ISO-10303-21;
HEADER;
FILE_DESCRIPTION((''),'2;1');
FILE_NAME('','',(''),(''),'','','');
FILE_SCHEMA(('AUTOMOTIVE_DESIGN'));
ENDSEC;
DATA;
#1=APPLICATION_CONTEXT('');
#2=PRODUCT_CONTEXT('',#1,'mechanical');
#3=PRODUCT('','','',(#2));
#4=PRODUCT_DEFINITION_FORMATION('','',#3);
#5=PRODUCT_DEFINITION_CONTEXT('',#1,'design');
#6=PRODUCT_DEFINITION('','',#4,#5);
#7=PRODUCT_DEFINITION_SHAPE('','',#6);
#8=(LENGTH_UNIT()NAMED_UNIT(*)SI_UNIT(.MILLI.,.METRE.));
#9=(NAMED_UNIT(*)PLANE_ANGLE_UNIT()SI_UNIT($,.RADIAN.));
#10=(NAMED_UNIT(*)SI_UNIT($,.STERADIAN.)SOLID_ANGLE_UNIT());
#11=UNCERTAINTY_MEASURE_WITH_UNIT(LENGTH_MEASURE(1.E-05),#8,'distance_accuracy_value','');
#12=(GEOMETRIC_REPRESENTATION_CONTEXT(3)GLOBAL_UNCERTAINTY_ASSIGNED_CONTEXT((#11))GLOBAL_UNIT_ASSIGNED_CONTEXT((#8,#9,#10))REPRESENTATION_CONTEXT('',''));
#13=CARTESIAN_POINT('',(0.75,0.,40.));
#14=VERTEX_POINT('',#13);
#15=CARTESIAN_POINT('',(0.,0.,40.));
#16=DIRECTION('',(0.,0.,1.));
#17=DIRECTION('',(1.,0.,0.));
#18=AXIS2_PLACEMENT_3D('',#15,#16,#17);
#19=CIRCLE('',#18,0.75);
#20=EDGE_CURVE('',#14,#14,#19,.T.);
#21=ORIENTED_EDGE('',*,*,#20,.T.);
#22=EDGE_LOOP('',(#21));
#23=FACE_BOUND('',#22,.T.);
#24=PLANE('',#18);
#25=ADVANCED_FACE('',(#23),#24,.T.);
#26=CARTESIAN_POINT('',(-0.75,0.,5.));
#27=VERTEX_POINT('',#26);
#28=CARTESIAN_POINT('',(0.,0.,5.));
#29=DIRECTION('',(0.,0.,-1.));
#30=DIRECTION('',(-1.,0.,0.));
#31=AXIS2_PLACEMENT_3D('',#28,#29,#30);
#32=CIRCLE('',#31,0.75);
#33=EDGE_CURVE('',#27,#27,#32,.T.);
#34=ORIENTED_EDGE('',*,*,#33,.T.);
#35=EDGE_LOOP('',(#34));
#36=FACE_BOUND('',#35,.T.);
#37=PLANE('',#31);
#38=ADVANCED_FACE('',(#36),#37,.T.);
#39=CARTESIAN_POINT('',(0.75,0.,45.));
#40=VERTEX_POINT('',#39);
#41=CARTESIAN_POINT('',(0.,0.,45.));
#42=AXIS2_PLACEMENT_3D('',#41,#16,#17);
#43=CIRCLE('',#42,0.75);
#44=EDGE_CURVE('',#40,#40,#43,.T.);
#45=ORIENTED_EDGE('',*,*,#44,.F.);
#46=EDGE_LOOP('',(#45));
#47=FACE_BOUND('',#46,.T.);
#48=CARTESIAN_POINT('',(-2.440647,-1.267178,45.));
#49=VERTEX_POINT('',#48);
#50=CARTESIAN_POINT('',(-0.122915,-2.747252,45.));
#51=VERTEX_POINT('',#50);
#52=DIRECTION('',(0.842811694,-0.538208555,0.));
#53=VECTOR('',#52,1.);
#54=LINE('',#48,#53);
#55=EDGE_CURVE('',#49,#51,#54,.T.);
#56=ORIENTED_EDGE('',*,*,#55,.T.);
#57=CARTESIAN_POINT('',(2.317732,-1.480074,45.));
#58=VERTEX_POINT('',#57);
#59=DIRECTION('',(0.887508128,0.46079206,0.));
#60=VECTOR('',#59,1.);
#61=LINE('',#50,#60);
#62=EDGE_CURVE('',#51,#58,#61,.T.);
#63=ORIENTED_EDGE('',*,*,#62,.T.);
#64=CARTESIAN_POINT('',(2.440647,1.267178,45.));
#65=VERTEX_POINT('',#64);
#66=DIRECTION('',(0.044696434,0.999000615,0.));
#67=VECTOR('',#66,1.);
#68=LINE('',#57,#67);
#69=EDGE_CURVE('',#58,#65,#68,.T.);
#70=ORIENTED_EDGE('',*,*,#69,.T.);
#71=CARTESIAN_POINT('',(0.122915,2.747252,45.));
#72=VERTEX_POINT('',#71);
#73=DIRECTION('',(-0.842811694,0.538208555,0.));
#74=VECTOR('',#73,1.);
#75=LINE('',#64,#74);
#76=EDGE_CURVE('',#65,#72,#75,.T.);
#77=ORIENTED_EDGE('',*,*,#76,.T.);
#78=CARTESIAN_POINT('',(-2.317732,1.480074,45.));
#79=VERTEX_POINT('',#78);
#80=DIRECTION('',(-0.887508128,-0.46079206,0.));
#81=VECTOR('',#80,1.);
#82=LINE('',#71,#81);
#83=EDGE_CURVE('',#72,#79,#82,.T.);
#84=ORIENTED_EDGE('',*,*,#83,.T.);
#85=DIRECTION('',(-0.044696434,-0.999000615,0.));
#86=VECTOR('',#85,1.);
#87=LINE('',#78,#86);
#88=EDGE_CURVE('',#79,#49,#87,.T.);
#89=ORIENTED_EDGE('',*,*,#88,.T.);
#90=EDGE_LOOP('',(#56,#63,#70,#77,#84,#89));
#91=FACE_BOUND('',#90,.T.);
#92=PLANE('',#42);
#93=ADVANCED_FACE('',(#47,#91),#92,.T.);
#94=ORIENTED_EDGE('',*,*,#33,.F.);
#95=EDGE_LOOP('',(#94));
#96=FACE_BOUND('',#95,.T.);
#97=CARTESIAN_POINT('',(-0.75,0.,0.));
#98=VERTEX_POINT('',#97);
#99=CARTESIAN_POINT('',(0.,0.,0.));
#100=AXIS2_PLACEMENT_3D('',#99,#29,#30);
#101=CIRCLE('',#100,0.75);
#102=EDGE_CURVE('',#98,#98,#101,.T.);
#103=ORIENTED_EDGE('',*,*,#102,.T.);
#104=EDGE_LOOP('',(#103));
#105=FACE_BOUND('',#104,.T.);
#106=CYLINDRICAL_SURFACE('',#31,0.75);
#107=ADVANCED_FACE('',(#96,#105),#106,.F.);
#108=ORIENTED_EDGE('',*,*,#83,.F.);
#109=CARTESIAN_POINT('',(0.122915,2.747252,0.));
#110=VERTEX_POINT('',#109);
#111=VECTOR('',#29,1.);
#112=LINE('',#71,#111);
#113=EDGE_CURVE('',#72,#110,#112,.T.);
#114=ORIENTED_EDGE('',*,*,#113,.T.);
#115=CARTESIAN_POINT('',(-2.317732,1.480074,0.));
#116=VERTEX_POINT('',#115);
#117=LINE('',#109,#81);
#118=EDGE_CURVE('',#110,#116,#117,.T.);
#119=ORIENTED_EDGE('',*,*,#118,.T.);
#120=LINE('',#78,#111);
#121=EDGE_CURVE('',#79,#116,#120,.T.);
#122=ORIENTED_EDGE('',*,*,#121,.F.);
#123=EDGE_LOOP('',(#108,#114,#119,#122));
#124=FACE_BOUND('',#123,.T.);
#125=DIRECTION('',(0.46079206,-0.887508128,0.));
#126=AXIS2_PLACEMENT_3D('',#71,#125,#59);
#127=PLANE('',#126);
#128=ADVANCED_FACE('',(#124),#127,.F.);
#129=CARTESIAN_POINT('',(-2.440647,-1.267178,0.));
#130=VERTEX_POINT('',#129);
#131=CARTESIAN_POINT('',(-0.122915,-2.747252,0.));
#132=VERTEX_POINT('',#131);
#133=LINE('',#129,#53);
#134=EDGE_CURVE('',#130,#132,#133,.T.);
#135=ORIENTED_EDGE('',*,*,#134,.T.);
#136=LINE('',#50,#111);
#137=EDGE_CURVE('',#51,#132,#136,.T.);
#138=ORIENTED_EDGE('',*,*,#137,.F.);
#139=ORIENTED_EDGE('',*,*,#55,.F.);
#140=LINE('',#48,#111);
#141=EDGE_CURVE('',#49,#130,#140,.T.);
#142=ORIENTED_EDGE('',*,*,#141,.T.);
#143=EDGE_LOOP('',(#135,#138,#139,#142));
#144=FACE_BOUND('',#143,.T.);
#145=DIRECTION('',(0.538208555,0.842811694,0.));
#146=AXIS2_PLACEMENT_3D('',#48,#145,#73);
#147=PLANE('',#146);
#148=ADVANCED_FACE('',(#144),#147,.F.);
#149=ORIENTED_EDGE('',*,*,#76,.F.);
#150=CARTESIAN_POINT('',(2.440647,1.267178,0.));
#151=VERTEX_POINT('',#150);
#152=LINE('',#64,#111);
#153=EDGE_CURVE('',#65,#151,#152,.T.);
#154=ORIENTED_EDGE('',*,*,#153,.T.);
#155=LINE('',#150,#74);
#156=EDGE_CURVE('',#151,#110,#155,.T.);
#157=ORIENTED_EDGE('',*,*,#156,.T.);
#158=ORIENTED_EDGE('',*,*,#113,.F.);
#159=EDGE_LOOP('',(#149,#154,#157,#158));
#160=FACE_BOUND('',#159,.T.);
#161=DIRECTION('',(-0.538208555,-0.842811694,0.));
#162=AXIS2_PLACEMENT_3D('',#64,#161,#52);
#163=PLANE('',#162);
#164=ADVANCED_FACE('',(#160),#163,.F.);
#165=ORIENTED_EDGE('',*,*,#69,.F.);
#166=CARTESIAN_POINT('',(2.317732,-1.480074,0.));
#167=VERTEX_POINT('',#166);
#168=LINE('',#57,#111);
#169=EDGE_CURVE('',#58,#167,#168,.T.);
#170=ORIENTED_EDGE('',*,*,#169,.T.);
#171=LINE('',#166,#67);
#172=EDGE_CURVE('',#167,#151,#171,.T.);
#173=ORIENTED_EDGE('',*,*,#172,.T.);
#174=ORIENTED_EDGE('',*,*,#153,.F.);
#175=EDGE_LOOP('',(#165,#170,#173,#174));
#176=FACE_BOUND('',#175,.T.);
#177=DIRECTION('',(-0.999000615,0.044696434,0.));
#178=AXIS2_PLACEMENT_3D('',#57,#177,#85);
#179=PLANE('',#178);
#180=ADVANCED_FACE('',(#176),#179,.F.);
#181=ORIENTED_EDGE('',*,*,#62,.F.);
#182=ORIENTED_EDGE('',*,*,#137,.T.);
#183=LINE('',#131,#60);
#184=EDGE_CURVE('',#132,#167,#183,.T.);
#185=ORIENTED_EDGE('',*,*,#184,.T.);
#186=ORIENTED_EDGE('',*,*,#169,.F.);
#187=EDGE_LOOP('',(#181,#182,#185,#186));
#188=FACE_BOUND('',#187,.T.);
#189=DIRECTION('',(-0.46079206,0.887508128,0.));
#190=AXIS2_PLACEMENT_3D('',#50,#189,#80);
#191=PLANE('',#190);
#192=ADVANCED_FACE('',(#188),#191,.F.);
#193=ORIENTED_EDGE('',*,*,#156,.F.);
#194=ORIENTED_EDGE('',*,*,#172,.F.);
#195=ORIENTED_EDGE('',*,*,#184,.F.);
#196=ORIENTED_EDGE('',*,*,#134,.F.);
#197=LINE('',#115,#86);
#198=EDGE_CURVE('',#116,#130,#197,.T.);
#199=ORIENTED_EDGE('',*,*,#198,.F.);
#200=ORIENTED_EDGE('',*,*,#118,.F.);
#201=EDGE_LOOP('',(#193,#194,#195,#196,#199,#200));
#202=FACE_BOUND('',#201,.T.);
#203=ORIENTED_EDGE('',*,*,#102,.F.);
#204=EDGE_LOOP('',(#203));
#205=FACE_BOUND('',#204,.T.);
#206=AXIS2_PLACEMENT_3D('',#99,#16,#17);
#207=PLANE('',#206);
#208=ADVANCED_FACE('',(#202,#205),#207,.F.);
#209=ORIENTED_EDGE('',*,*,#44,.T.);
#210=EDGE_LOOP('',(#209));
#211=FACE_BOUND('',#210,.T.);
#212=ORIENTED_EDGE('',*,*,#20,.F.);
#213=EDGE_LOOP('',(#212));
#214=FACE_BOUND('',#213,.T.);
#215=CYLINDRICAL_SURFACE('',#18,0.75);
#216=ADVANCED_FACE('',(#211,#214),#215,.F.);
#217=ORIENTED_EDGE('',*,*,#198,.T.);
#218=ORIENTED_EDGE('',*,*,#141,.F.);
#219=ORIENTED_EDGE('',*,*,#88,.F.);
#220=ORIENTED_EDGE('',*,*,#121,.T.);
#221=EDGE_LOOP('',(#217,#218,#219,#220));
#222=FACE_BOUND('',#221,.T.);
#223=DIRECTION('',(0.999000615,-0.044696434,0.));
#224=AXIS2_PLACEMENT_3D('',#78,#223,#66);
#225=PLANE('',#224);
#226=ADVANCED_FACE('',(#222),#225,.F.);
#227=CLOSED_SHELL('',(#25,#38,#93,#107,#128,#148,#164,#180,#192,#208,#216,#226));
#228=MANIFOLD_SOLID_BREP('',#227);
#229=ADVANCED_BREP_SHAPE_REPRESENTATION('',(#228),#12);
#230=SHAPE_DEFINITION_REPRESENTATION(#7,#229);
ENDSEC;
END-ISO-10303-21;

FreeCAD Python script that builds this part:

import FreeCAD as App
import Part
import Sketcher

V = App.Vector
Q = App.Units.Quantity

doc = App.newDocument("Part")
body = doc.addObject("PartDesign::Body", "Body")

# Sketch on XY plane
sketch1 = body.newObject("Sketcher::SketchObject", "Sketch")
sketch1.AttachmentSupport = (doc.getObject("XY_Plane"), [""])
sketch1.MapMode = "FlatFace"
sketch1.addGeometry(Part.LineSegment(V(2.3, -1.5, 0), V(2.4, 1.3, 0)), False)
sketch1.addGeometry(Part.LineSegment(V(2.4, 1.3, 0), V(0.1, 2.7, 0)), False)
sketch1.addGeometry(Part.LineSegment(V(0.1, 2.7, 0), V(-2.3, 1.5, 0)), False)
sketch1.addGeometry(Part.LineSegment(V(-2.3, 1.5, 0), V(-2.4, -1.3, 0)), False)
sketch1.addGeometry(Part.LineSegment(V(-2.4, -1.3, 0), V(-0.1, -2.7, 0)), False)
sketch1.addGeometry(Part.LineSegment(V(-0.1, -2.7, 0), V(2.3, -1.5, 0)), False)
sketch1.addConstraint(Sketcher.Constraint("Coincident", 0, 2, 1, 1))
sketch1.addConstraint(Sketcher.Constraint("Coincident", 1, 2, 2, 1))
sketch1.addConstraint(Sketcher.Constraint("Coincident", 2, 2, 3, 1))
sketch1.addConstraint(Sketcher.Constraint("Coincident", 3, 2, 4, 1))
sketch1.addConstraint(Sketcher.Constraint("Coincident", 4, 2, 5, 1))
sketch1.addConstraint(Sketcher.Constraint("Coincident", 5, 2, 0, 1))
sketch1.addConstraint(Sketcher.Constraint("Symmetric", 0, 2, 3, 2, -1, 1))
sketch1.addConstraint(Sketcher.Constraint("Symmetric", 1, 2, 4, 2, -1, 1))
sketch1.addConstraint(Sketcher.Constraint("Symmetric", 2, 2, 5, 2, -1, 1))
sketch1.addConstraint(Sketcher.Constraint("Equal", 0, 1))
sketch1.addConstraint(Sketcher.Constraint("Equal", 1, 2))
sketch1.addConstraint(Sketcher.Constraint("Distance", 0, Q("2.75 mm")))
sketch1.addConstraint(Sketcher.Constraint("DistanceY", -1, 1, 0, 2, Q("1.267178 mm")))
sketch1.addConstraint(Sketcher.Constraint("DistanceY", -1, 1, 1, 2, Q("2.747252 mm")))
sketch1.addConstraint(Sketcher.Constraint("DistanceY", 2, 2, 1, 2, Q("1.267178 mm")))
pad1 = body.newObject("PartDesign::Pad", "Pad")
pad1.Profile = sketch1
pad1.Length = 45

# Sketch on XY plane
sketch2 = body.newObject("Sketcher::SketchObject", "Sketch001")
sketch2.AttachmentSupport = (doc.getObject("XY_Plane"), [""])
sketch2.MapMode = "FlatFace"
sketch2.AttachmentOffset = App.Placement(V(0, 0, 45), App.Rotation())
sketch2.addGeometry(Part.Circle(V(0, 0, 0), V(0, 0, 1), 0.8), False)
sketch2.addConstraint(Sketcher.Constraint("Coincident", 0, 3, -1, 1))
sketch2.addConstraint(Sketcher.Constraint("Diameter", 0, Q("1.5 mm")))
pocket1 = body.newObject("PartDesign::Pocket", "Pocket")
pocket1.Profile = sketch2
pocket1.Length = 5

# Sketch on XY plane
sketch3 = body.newObject("Sketcher::SketchObject", "Sketch002")
sketch3.AttachmentSupport = (doc.getObject("XY_Plane"), [""])
sketch3.MapMode = "FlatFace"
sketch3.AttachmentOffset = App.Placement(V(0, 0, 5), App.Rotation())
sketch3.addGeometry(Part.Circle(V(0, 0, 0), V(0, 0, 1), 0.8), False)
sketch3.addConstraint(Sketcher.Constraint("Coincident", 0, 3, -1, 1))
sketch3.addConstraint(Sketcher.Constraint("Diameter", 0, Q("1.5 mm")))
pocket2 = body.newObject("PartDesign::Pocket", "Pocket001")
pocket2.Profile = sketch3
pocket2.Length = 5

doc.recompute()
